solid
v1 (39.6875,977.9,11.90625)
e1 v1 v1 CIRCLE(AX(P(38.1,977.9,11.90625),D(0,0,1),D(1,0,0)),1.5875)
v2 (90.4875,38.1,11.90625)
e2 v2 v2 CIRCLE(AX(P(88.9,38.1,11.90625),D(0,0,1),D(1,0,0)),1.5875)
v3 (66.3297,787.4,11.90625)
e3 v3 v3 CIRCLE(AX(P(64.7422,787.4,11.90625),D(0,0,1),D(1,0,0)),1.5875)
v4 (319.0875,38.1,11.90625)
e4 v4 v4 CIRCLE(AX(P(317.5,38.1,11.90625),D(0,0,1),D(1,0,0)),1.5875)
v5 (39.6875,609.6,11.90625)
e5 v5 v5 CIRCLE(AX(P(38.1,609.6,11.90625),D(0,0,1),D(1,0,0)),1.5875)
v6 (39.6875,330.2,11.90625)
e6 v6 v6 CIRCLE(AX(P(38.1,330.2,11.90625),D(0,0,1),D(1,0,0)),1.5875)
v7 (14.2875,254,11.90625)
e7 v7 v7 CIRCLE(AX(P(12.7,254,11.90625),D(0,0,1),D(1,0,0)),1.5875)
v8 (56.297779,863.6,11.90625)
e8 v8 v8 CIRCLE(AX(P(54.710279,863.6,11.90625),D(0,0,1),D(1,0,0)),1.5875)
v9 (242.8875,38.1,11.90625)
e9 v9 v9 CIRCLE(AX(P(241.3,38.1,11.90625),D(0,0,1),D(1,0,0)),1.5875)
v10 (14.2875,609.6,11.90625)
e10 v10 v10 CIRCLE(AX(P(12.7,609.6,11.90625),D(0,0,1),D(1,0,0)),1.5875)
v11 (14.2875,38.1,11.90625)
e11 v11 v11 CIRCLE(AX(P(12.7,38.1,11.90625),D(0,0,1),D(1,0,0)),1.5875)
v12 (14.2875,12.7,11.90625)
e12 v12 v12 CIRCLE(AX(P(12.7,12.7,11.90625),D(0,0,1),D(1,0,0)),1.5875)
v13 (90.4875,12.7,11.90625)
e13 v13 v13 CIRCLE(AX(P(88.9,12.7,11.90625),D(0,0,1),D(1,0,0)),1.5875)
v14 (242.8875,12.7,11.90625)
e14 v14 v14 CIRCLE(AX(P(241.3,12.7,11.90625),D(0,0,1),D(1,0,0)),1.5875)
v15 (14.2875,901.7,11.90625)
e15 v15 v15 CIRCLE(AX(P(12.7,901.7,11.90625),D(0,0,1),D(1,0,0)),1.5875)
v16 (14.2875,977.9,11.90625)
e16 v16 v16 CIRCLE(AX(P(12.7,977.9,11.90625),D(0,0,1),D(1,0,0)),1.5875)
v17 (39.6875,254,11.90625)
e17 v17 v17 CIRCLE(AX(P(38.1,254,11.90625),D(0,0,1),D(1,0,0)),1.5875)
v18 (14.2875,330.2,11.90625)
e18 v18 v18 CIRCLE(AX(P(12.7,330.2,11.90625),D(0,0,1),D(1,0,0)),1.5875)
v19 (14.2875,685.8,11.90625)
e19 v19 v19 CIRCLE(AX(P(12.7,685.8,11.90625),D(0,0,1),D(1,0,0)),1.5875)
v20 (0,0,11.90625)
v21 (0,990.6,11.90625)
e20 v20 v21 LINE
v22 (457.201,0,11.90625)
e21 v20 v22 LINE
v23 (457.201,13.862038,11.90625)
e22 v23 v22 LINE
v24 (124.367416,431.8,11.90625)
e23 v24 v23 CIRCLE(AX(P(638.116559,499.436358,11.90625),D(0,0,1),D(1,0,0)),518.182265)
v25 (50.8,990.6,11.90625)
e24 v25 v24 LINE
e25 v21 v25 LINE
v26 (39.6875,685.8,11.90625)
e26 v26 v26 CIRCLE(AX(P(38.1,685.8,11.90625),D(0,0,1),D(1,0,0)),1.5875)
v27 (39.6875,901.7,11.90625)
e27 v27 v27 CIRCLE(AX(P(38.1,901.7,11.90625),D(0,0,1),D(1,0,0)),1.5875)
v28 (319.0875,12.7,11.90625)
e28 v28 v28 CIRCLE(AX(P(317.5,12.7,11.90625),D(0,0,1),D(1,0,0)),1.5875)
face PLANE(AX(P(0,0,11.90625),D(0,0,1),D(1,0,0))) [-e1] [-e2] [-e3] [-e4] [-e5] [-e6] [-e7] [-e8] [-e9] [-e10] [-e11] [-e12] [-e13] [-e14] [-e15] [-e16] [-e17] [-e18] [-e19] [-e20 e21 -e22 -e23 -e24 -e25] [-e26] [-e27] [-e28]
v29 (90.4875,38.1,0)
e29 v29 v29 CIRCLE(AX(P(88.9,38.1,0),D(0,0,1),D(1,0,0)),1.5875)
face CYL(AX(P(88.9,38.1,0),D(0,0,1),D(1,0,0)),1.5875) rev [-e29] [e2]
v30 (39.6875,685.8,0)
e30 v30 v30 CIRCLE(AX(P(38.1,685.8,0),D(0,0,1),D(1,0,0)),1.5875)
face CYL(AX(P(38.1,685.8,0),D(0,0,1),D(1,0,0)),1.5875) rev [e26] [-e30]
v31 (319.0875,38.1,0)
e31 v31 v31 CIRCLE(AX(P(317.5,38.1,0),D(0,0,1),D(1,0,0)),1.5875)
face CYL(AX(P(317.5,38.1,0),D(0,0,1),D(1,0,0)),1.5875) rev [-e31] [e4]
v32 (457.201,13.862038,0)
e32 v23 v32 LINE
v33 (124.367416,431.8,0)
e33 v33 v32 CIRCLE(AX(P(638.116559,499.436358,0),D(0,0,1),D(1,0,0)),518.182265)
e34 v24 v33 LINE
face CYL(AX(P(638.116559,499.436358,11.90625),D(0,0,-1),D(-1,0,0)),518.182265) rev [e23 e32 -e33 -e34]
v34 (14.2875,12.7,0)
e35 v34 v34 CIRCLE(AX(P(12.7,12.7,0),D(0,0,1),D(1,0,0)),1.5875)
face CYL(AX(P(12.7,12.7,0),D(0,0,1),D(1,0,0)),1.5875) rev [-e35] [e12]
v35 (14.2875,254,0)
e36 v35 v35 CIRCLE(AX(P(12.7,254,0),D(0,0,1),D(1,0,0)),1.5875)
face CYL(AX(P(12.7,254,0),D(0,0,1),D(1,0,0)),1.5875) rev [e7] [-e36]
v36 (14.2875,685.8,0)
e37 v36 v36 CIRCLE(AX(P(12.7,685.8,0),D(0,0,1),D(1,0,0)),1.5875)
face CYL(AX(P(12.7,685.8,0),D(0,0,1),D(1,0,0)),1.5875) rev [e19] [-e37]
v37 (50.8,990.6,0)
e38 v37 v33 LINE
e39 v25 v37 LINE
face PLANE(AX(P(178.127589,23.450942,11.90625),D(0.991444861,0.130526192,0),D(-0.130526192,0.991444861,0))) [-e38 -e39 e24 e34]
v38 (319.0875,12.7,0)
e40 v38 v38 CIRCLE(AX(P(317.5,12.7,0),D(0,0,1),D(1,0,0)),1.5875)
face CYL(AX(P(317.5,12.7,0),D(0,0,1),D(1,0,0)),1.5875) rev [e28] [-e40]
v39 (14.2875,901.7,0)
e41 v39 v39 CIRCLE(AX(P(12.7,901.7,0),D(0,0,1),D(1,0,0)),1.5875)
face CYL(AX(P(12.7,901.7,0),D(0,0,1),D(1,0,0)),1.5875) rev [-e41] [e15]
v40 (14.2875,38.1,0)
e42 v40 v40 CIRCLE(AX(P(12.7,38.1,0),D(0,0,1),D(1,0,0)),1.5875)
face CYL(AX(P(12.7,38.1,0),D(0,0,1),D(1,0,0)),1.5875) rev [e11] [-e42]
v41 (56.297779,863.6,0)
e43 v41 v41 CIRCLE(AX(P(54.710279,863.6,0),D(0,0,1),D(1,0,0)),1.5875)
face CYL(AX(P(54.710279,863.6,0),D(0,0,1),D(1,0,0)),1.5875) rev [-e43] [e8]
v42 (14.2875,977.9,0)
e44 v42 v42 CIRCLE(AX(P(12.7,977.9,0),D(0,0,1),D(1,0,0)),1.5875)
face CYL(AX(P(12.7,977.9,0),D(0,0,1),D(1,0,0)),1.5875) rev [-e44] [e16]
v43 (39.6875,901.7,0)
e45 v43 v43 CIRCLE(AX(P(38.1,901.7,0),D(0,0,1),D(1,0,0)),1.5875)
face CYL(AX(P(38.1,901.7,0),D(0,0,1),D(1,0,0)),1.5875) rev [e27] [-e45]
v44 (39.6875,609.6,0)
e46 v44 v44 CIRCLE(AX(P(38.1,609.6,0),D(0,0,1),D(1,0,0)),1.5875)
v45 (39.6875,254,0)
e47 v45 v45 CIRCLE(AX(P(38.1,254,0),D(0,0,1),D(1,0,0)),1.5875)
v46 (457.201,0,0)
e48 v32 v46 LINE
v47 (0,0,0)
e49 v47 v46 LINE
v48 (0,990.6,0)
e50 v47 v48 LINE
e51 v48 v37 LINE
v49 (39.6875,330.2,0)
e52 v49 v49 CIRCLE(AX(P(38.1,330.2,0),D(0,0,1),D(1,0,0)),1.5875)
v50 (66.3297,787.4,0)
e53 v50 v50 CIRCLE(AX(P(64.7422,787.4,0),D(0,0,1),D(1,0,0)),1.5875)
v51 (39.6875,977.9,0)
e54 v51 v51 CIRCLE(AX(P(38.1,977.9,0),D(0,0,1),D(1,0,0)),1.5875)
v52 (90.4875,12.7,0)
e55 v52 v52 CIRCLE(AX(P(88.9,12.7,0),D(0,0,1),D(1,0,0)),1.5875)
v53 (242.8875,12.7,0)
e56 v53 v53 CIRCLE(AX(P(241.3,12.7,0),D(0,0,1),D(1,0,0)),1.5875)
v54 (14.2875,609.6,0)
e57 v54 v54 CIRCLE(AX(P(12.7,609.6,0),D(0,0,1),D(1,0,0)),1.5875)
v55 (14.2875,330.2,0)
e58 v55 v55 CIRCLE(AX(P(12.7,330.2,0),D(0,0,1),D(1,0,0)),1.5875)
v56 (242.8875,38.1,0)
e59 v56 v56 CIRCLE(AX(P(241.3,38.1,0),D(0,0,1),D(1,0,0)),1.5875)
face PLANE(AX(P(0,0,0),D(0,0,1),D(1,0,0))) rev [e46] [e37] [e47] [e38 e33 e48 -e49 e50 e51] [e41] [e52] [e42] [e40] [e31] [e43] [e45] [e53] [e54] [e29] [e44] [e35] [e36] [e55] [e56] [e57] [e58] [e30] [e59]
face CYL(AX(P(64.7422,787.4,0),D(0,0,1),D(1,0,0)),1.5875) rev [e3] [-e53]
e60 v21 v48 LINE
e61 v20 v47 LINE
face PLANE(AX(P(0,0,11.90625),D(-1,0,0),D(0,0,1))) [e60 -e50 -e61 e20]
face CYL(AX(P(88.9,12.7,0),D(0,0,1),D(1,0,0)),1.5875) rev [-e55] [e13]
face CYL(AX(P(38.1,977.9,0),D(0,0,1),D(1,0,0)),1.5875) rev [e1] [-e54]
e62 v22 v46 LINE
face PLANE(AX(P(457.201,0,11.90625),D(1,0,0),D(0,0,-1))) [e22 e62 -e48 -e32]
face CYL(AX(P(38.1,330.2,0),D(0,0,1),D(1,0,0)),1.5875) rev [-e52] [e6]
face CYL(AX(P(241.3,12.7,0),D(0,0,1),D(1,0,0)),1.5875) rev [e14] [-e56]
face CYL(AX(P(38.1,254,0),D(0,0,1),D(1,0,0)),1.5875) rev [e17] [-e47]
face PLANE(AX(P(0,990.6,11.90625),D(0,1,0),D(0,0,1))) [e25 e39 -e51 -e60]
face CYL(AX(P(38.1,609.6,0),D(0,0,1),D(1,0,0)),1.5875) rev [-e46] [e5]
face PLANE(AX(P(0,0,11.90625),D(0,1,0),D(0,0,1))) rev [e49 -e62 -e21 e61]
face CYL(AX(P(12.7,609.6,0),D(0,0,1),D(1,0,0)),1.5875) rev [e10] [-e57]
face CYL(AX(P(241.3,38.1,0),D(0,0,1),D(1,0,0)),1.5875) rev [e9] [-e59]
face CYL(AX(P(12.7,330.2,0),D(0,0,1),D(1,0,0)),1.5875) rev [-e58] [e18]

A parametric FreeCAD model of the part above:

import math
import FreeCAD as App
import Part
import Sketcher

V = App.Vector
Q = App.Units.Quantity

doc = App.newDocument("Part")
body = doc.addObject("PartDesign::Body", "Body")

sketch1 = body.newObject("Sketcher::SketchObject", "Sketch")
sketch1.AttachmentSupport = (doc.getObject("XY_Plane"), [""])
sketch1.MapMode = "FlatFace"
sketch1.addGeometry(Part.LineSegment(V(0, 990.6, 0), V(0, 0, 0)), False)
sketch1.addGeometry(Part.LineSegment(V(0, 0, 0), V(457.201, 0, 0)), False)
sketch1.addGeometry(Part.LineSegment(V(457.201, 0, 0), V(457.201, 13.862038, 0)), False)
sketch1.addGeometry(Part.ArcOfCircle(Part.Circle(V(638.116559, 499.436358, 0), V(0, 0, 1), 518.182265), math.radians(-172.5), math.radians(-110.434416)), False)
sketch1.addGeometry(Part.LineSegment(V(124.367416, 431.8, 0), V(50.8, 990.6, 0)), False)
sketch1.addGeometry(Part.LineSegment(V(50.8, 990.6, 0), V(0, 990.6, 0)), False)
sketch1.addConstraint(Sketcher.Constraint("Coincident", 0, 2, 1, 1))
sketch1.addConstraint(Sketcher.Constraint("Coincident", 1, 2, 2, 1))
sketch1.addConstraint(Sketcher.Constraint("Coincident", 2, 2, 3, 2))
sketch1.addConstraint(Sketcher.Constraint("Tangent", 3, 1, 4, 1))
sketch1.addConstraint(Sketcher.Constraint("Coincident", 4, 2, 5, 1))
sketch1.addConstraint(Sketcher.Constraint("Coincident", 5, 2, 0, 1))
sketch1.addConstraint(Sketcher.Constraint("Vertical", 0))
sketch1.addConstraint(Sketcher.Constraint("Horizontal", 1))
sketch1.addConstraint(Sketcher.Constraint("Vertical", 2))
sketch1.addConstraint(Sketcher.Constraint("Horizontal", 5))
sketch1.addConstraint(Sketcher.Constraint("Coincident", 0, 2, -1, 1))
sketch1.addConstraint(Sketcher.Constraint("DistanceX", 5, 2, 5, 1, Q("2 in")))
sketch1.addConstraint(Sketcher.Constraint("DistanceY", 0, 2, 0, 1, Q("39 in")))
sketch1.addConstraint(Sketcher.Constraint("Angle", 4, Q("97.5 deg")))
sketch1.addConstraint(Sketcher.Constraint("DistanceX", 1, 1, 1, 2, 457.201))
sketch1.addConstraint(Sketcher.Constraint("Radius", 3, 518.182265))
sketch1.addConstraint(Sketcher.Constraint("DistanceY", 2, 1, 2, 2, 13.862038))
pad1 = body.newObject("PartDesign::Pad", "Pad")
pad1.Profile = sketch1
pad1.Length = Q("0.46875 in")

sketch2 = body.newObject("Sketcher::SketchObject", "Sketch001")
sketch2.AttachmentSupport = (doc.getObject("XY_Plane"), [""])
sketch2.MapMode = "FlatFace"
sketch2.AttachmentOffset = App.Placement(V(0, 0, 0.46875 * 25.4), App.Rotation())
sketch2.addGeometry(Part.Circle(V(12.7, 977.9, 0), V(0, 0, 1), 1.5875), False)
sketch2.addGeometry(Part.Circle(V(38.1, 977.9, 0), V(0, 0, 1), 1.5875), False)
sketch2.addGeometry(Part.Circle(V(12.7, 901.7, 0), V(0, 0, 1), 1.5875), False)
sketch2.addGeometry(Part.Circle(V(38.1, 901.7, 0), V(0, 0, 1), 1.5875), False)
sketch2.addGeometry(Part.Circle(V(12.7, 609.6, 0), V(0, 0, 1), 1.5875), False)
sketch2.addGeometry(Part.Circle(V(38.1, 609.6, 0), V(0, 0, 1), 1.5875), False)
sketch2.addGeometry(Part.Circle(V(12.7, 685.8, 0), V(0, 0, 1), 1.5875), False)
sketch2.addGeometry(Part.Circle(V(38.1, 685.8, 0), V(0, 0, 1), 1.5875), False)
sketch2.addGeometry(Part.Circle(V(12.7, 254, 0), V(0, 0, 1), 1.5875), False)
sketch2.addGeometry(Part.Circle(V(38.1, 254, 0), V(0, 0, 1), 1.5875), False)
sketch2.addGeometry(Part.Circle(V(12.7, 330.2, 0), V(0, 0, 1), 1.5875), False)
sketch2.addGeometry(Part.Circle(V(38.1, 330.2, 0), V(0, 0, 1), 1.5875), False)
sketch2.addGeometry(Part.Circle(V(12.7, 38.1, 0), V(0, 0, 1), 1.5875), False)
sketch2.addGeometry(Part.Circle(V(12.7, 12.7, 0), V(0, 0, 1), 1.5875), False)
sketch2.addGeometry(Part.Circle(V(88.9, 38.1, 0), V(0, 0, 1), 1.5875), False)
sketch2.addGeometry(Part.Circle(V(88.9, 12.7, 0), V(0, 0, 1), 1.5875), False)
sketch2.addGeometry(Part.Circle(V(241.3, 38.1, 0), V(0, 0, 1), 1.5875), False)
sketch2.addGeometry(Part.Circle(V(317.5, 38.1, 0), V(0, 0, 1), 1.5875), False)
sketch2.addGeometry(Part.Circle(V(241.3, 12.7, 0), V(0, 0, 1), 1.5875), False)
sketch2.addGeometry(Part.Circle(V(317.5, 12.7, 0), V(0, 0, 1), 1.5875), False)
sketch2.addConstraint(Sketcher.Constraint("Equal", 0, 1))
sketch2.addConstraint(Sketcher.Constraint("Equal", 1, 2))
sketch2.addConstraint(Sketcher.Constraint("Equal", 2, 3))
sketch2.addConstraint(Sketcher.Constraint("Equal", 3, 4))
sketch2.addConstraint(Sketcher.Constraint("Equal", 4, 5))
sketch2.addConstraint(Sketcher.Constraint("Equal", 5, 6))
sketch2.addConstraint(Sketcher.Constraint("Equal", 6, 7))
sketch2.addConstraint(Sketcher.Constraint("Equal", 7, 8))
sketch2.addConstraint(Sketcher.Constraint("Equal", 8, 9))
sketch2.addConstraint(Sketcher.Constraint("Equal", 9, 10))
sketch2.addConstraint(Sketcher.Constraint("Equal", 10, 11))
sketch2.addConstraint(Sketcher.Constraint("Equal", 11, 12))
sketch2.addConstraint(Sketcher.Constraint("Equal", 12, 13))
sketch2.addConstraint(Sketcher.Constraint("Equal", 13, 14))
sketch2.addConstraint(Sketcher.Constraint("Equal", 14, 15))
sketch2.addConstraint(Sketcher.Constraint("Equal", 15, 16))
sketch2.addConstraint(Sketcher.Constraint("Equal", 16, 17))
sketch2.addConstraint(Sketcher.Constraint("Equal", 17, 18))
sketch2.addConstraint(Sketcher.Constraint("Equal", 18, 19))
sketch2.addConstraint(Sketcher.Constraint("Horizontal", 0, 3, 1, 3))
sketch2.addConstraint(Sketcher.Constraint("Horizontal", 2, 3, 3, 3))
sketch2.addConstraint(Sketcher.Constraint("Horizontal", 4, 3, 5, 3))
sketch2.addConstraint(Sketcher.Constraint("Horizontal", 6, 3, 7, 3))
sketch2.addConstraint(Sketcher.Constraint("Horizontal", 8, 3, 9, 3))
sketch2.addConstraint(Sketcher.Constraint("Horizontal", 10, 3, 11, 3))
sketch2.addConstraint(Sketcher.Constraint("Horizontal", 12, 3, 14, 3))
sketch2.addConstraint(Sketcher.Constraint("Horizontal", 13, 3, 15, 3))
sketch2.addConstraint(Sketcher.Constraint("Horizontal", 14, 3, 16, 3))
sketch2.addConstraint(Sketcher.Constraint("Horizontal", 16, 3, 17, 3))
sketch2.addConstraint(Sketcher.Constraint("Horizontal", 15, 3, 18, 3))
sketch2.addConstraint(Sketcher.Constraint("Horizontal", 18, 3, 19, 3))
sketch2.addConstraint(Sketcher.Constraint("Vertical", 0, 3, 2, 3))
sketch2.addConstraint(Sketcher.Constraint("Vertical", 1, 3, 3, 3))
sketch2.addConstraint(Sketcher.Constraint("Vertical", 2, 3, 4, 3))
sketch2.addConstraint(Sketcher.Constraint("Vertical", 3, 3, 5, 3))
sketch2.addConstraint(Sketcher.Constraint("Vertical", 4, 3, 6, 3))
sketch2.addConstraint(Sketcher.Constraint("Vertical", 5, 3, 7, 3))
sketch2.addConstraint(Sketcher.Constraint("Vertical", 6, 3, 8, 3))
sketch2.addConstraint(Sketcher.Constraint("Vertical", 7, 3, 9, 3))
sketch2.addConstraint(Sketcher.Constraint("Vertical", 8, 3, 10, 3))
sketch2.addConstraint(Sketcher.Constraint("Vertical", 9, 3, 11, 3))
sketch2.addConstraint(Sketcher.Constraint("Vertical", 10, 3, 12, 3))
sketch2.addConstraint(Sketcher.Constraint("Vertical", 12, 3, 13, 3))
sketch2.addConstraint(Sketcher.Constraint("Vertical", 14, 3, 15, 3))
sketch2.addConstraint(Sketcher.Constraint("Vertical", 16, 3, 18, 3))
sketch2.addConstraint(Sketcher.Constraint("Vertical", 17, 3, 19, 3))
sketch2.addConstraint(Sketcher.Constraint("Diameter", 0, Q("0.125 in")))
sketch2.addConstraint(Sketcher.Constraint("DistanceY", -1, 1, 4, 3, Q("24 in")))
sketch2.addConstraint(Sketcher.Constraint("DistanceY", -1, 1, 6, 3, Q("27 in")))
sketch2.addConstraint(Sketcher.Constraint("DistanceY", -1, 1, 8, 3, Q("10 in")))
sketch2.addConstraint(Sketcher.Constraint("DistanceY", -1, 1, 10, 3, Q("13 in")))
sketch2.addConstraint(Sketcher.Constraint("DistanceX", 0, 3, 1, 3, Q("1 in")))
sketch2.addConstraint(Sketcher.Constraint("DistanceY", 2, 3, 0, 3, Q("3 in")))
sketch2.addConstraint(Sketcher.Constraint("DistanceY", 13, 3, 12, 3, Q("1 in")))
sketch2.addConstraint(Sketcher.Constraint("DistanceX", 12, 3, 14, 3, Q("3 in")))
sketch2.addConstraint(Sketcher.Constraint("DistanceX", 14, 3, 16, 3, Q("6 in")))
sketch2.addConstraint(Sketcher.Constraint("DistanceX", 16, 3, 17, 3, Q("3 in")))
sketch2.addConstraint(Sketcher.Constraint("DistanceX", -1, 1, 0, 3, Q("0.5 in")))
sketch2.addConstraint(Sketcher.Constraint("DistanceY", -1, 1, 0, 3, Q("38.5 in")))
sketch2.addConstraint(Sketcher.Constraint("DistanceY", -1, 1, 12, 3, Q("1.5 in")))
pocket1 = body.newObject("PartDesign::Pocket", "Pocket")
pocket1.Profile = sketch2
pocket1.Type = "ThroughAll"

sketch3 = body.newObject("Sketcher::SketchObject", "Sketch002")
sketch3.AttachmentSupport = (doc.getObject("XY_Plane"), [""])
sketch3.MapMode = "FlatFace"
sketch3.AttachmentOffset = App.Placement(V(0, 0, 0.46875 * 25.4), App.Rotation())
sketch3.addGeometry(Part.Circle(V(64.7422, 787.4, 0), V(0, 0, 1), 1.5875), False)
sketch3.addGeometry(Part.Circle(V(54.710279, 863.6, 0), V(0, 0, 1), 1.5875), False)
sketch3.addConstraint(Sketcher.Constraint("Equal", 0, 1))
sketch3.addConstraint(Sketcher.Constraint("Diameter", 0, Q("0.125 in")))
sketch3.addConstraint(Sketcher.Constraint("DistanceY", -1, 1, 0, 3, Q("31 in")))
sketch3.addConstraint(Sketcher.Constraint("DistanceY", -1, 1, 1, 3, Q("34 in")))
sketch3.addConstraint(Sketcher.Constraint("DistanceX", -1, 1, 0, 3, 64.7422))
sketch3.addConstraint(Sketcher.Constraint("DistanceX", -1, 1, 1, 3, 54.710279))
pocket2 = body.newObject("PartDesign::Pocket", "Pocket001")
pocket2.Profile = sketch3
pocket2.Type = "ThroughAll"

doc.recompute()
